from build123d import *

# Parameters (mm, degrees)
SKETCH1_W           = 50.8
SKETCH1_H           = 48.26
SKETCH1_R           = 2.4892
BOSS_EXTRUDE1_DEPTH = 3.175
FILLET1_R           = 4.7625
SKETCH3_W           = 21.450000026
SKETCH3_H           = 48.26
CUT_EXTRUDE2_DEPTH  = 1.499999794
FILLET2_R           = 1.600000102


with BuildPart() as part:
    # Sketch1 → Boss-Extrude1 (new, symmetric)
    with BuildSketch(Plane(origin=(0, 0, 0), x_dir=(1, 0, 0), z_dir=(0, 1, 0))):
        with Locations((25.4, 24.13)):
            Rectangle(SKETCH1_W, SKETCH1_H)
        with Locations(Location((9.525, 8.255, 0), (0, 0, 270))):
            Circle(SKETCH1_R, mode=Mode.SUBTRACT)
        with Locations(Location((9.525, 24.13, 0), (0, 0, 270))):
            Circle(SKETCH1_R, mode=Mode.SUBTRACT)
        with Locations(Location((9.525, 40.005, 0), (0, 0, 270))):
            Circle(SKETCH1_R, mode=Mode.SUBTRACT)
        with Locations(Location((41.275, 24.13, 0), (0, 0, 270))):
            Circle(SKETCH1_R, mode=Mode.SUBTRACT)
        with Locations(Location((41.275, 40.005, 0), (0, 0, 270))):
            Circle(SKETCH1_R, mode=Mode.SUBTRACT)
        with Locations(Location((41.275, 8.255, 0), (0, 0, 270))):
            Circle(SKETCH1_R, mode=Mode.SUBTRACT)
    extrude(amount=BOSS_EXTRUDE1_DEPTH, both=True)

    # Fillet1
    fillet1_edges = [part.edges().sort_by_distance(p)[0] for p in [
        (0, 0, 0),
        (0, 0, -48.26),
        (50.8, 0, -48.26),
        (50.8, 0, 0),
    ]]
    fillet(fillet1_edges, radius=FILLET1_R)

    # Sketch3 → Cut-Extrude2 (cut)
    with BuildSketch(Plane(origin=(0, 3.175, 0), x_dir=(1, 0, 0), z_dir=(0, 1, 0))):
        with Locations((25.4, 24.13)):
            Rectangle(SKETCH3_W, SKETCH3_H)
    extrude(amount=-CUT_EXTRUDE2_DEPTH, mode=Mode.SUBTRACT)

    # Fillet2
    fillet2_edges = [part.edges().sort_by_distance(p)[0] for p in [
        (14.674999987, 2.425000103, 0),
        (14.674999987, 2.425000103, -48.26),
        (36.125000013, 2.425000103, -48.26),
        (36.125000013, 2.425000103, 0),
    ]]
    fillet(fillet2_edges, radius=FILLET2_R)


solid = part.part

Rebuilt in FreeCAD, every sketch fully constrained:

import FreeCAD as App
import Part
import Sketcher
from FreeCAD import Vector
Q = App.Units.Quantity


def edges_at(feature, points):
    """Names of the edges that pass closest to the given points."""
    edges = feature.Shape.Edges
    near = lambda p: min(range(len(edges)), key=lambda i: edges[i].distToShape(Part.Vertex(*p))[0])
    return sorted({f"Edge{near(p) + 1}" for p in points})


def add_polygon(sketch, points):
    """Adds a closed chain of lines whose ends are joined by coincident constraints."""
    first, n = sketch.GeometryCount, len(points)
    for a, b in zip(points, points[1:] + points[:1]):
        sketch.addGeometry(Part.LineSegment(App.Vector(*a, 0), App.Vector(*b, 0)), False)
    for i in range(n):
        sketch.addConstraint(Sketcher.Constraint("Coincident", first + i, 2, first + (i + 1) % n, 1))

doc = App.newDocument("Part")
body = doc.addObject("PartDesign::Body", "Body")

sketch1 = body.newObject("Sketcher::SketchObject", "Sketch")
sketch1.AttachmentSupport = (doc.getObject("XZ_Plane"), [""])
sketch1.MapMode = "FlatFace"
add_polygon(sketch1, [(0, -48.3), (0, 0), (50.8, 0), (50.8, -48.3)])
sketch1.addGeometry(Part.Circle(Vector(9.5, -8.3, 0), Vector(0, 0, 1), 2.5), False)
sketch1.addGeometry(Part.Circle(Vector(9.5, -24.1, 0), Vector(0, 0, 1), 2.5), False)
sketch1.addGeometry(Part.Circle(Vector(41.3, -8.3, 0), Vector(0, 0, 1), 2.5), False)
sketch1.addGeometry(Part.Circle(Vector(41.3, -24.1, 0), Vector(0, 0, 1), 2.5), False)
sketch1.addGeometry(Part.Circle(Vector(9.5, -40, 0), Vector(0, 0, 1), 2.5), False)
sketch1.addGeometry(Part.Circle(Vector(41.3, -40, 0), Vector(0, 0, 1), 2.5), False)
sketch1.addConstraint(Sketcher.Constraint("Vertical", 0))
sketch1.addConstraint(Sketcher.Constraint("Horizontal", 1))
sketch1.addConstraint(Sketcher.Constraint("Vertical", 2))
sketch1.addConstraint(Sketcher.Constraint("Horizontal", 3))
sketch1.addConstraint(Sketcher.Constraint("Coincident", 0, 2, -1, 1))
sketch1.addConstraint(Sketcher.Constraint("Equal", 4, 5))
sketch1.addConstraint(Sketcher.Constraint("Equal", 5, 6))
sketch1.addConstraint(Sketcher.Constraint("Equal", 6, 7))
sketch1.addConstraint(Sketcher.Constraint("Equal", 7, 8))
sketch1.addConstraint(Sketcher.Constraint("Equal", 8, 9))
sketch1.addConstraint(Sketcher.Constraint("Horizontal", 4, 3, 6, 3))
sketch1.addConstraint(Sketcher.Constraint("Horizontal", 5, 3, 7, 3))
sketch1.addConstraint(Sketcher.Constraint("Horizontal", 8, 3, 9, 3))
sketch1.addConstraint(Sketcher.Constraint("Vertical", 4, 3, 5, 3))
sketch1.addConstraint(Sketcher.Constraint("Vertical", 6, 3, 7, 3))
sketch1.addConstraint(Sketcher.Constraint("Vertical", 5, 3, 8, 3))
sketch1.addConstraint(Sketcher.Constraint("Vertical", 7, 3, 9, 3))
sketch1.addConstraint(Sketcher.Constraint("DistanceX", 1, 1, 1, 2, Q("2 in")))
sketch1.addConstraint(Sketcher.Constraint("Diameter", 4, Q("0.196 in")))
sketch1.addConstraint(Sketcher.Constraint("DistanceY", 0, 1, 0, 2, Q("1.9 in")))
sketch1.addConstraint(Sketcher.Constraint("DistanceY", 5, 3, -1, 1, Q("0.95 in")))
sketch1.addConstraint(Sketcher.Constraint("DistanceX", 4, 3, 6, 3, Q("1.25 in")))
sketch1.addConstraint(Sketcher.Constraint("DistanceY", 8, 3, 4, 3, Q("1.25 in")))
sketch1.addConstraint(Sketcher.Constraint("DistanceX", -1, 1, 4, 3, Q("0.375 in")))
sketch1.addConstraint(Sketcher.Constraint("DistanceY", 4, 3, -1, 1, Q("0.325 in")))
pad1 = body.newObject("PartDesign::Pad", "Pad")
pad1.Profile = sketch1
pad1.Length = Q("0.25 in")
pad1.Midplane = True
doc.recompute()

fillet = body.newObject("PartDesign::Fillet", "Fillet")
fillet.Base = (pad1, edges_at(pad1, [
    (0, 0, 0),
    (0, 0, -48.26),
    (50.8, 0, -48.26),
    (50.8, 0, 0),
]))
fillet.Radius = Q("0.1875 in")

sketch2 = body.newObject("Sketcher::SketchObject", "Sketch001")
sketch2.AttachmentSupport = (doc.getObject("XZ_Plane"), [""])
sketch2.MapMode = "FlatFace"
sketch2.AttachmentOffset = App.Placement(Vector(0, 0, -0.125 * 25.4), App.Rotation())
add_polygon(sketch2, [(15, -48), (15, 0), (36, 0), (36, -48)])
sketch2.addConstraint(Sketcher.Constraint("Vertical", 0))
sketch2.addConstraint(Sketcher.Constraint("Horizontal", 1))
sketch2.addConstraint(Sketcher.Constraint("Vertical", 2))
sketch2.addConstraint(Sketcher.Constraint("Horizontal", 3))
sketch2.addConstraint(Sketcher.Constraint("PointOnObject", 0, 2, -1))
sketch2.addConstraint(Sketcher.Constraint("DistanceY", 0, 1, 0, 2, Q("1.9 in")))
sketch2.addConstraint(Sketcher.Constraint("DistanceX", 1, 1, 1, 2, 21.45))
sketch2.addConstraint(Sketcher.Constraint("DistanceX", -1, 1, 0, 2, 14.675))
pocket1 = body.newObject("PartDesign::Pocket", "Pocket")
pocket1.Profile = sketch2
pocket1.Length = 1.5
pocket1.Reversed = True
doc.recompute()

fillet2 = body.newObject("PartDesign::Fillet", "Fillet001")
fillet2.Base = (pocket1, edges_at(pocket1, [
    (14.675, 2.425, 0),
    (14.675, 2.425, -48.26),
    (36.125, 2.425, -48.26),
    (36.125, 2.425, 0),
]))
fillet2.Radius = 1.6

doc.recompute()
